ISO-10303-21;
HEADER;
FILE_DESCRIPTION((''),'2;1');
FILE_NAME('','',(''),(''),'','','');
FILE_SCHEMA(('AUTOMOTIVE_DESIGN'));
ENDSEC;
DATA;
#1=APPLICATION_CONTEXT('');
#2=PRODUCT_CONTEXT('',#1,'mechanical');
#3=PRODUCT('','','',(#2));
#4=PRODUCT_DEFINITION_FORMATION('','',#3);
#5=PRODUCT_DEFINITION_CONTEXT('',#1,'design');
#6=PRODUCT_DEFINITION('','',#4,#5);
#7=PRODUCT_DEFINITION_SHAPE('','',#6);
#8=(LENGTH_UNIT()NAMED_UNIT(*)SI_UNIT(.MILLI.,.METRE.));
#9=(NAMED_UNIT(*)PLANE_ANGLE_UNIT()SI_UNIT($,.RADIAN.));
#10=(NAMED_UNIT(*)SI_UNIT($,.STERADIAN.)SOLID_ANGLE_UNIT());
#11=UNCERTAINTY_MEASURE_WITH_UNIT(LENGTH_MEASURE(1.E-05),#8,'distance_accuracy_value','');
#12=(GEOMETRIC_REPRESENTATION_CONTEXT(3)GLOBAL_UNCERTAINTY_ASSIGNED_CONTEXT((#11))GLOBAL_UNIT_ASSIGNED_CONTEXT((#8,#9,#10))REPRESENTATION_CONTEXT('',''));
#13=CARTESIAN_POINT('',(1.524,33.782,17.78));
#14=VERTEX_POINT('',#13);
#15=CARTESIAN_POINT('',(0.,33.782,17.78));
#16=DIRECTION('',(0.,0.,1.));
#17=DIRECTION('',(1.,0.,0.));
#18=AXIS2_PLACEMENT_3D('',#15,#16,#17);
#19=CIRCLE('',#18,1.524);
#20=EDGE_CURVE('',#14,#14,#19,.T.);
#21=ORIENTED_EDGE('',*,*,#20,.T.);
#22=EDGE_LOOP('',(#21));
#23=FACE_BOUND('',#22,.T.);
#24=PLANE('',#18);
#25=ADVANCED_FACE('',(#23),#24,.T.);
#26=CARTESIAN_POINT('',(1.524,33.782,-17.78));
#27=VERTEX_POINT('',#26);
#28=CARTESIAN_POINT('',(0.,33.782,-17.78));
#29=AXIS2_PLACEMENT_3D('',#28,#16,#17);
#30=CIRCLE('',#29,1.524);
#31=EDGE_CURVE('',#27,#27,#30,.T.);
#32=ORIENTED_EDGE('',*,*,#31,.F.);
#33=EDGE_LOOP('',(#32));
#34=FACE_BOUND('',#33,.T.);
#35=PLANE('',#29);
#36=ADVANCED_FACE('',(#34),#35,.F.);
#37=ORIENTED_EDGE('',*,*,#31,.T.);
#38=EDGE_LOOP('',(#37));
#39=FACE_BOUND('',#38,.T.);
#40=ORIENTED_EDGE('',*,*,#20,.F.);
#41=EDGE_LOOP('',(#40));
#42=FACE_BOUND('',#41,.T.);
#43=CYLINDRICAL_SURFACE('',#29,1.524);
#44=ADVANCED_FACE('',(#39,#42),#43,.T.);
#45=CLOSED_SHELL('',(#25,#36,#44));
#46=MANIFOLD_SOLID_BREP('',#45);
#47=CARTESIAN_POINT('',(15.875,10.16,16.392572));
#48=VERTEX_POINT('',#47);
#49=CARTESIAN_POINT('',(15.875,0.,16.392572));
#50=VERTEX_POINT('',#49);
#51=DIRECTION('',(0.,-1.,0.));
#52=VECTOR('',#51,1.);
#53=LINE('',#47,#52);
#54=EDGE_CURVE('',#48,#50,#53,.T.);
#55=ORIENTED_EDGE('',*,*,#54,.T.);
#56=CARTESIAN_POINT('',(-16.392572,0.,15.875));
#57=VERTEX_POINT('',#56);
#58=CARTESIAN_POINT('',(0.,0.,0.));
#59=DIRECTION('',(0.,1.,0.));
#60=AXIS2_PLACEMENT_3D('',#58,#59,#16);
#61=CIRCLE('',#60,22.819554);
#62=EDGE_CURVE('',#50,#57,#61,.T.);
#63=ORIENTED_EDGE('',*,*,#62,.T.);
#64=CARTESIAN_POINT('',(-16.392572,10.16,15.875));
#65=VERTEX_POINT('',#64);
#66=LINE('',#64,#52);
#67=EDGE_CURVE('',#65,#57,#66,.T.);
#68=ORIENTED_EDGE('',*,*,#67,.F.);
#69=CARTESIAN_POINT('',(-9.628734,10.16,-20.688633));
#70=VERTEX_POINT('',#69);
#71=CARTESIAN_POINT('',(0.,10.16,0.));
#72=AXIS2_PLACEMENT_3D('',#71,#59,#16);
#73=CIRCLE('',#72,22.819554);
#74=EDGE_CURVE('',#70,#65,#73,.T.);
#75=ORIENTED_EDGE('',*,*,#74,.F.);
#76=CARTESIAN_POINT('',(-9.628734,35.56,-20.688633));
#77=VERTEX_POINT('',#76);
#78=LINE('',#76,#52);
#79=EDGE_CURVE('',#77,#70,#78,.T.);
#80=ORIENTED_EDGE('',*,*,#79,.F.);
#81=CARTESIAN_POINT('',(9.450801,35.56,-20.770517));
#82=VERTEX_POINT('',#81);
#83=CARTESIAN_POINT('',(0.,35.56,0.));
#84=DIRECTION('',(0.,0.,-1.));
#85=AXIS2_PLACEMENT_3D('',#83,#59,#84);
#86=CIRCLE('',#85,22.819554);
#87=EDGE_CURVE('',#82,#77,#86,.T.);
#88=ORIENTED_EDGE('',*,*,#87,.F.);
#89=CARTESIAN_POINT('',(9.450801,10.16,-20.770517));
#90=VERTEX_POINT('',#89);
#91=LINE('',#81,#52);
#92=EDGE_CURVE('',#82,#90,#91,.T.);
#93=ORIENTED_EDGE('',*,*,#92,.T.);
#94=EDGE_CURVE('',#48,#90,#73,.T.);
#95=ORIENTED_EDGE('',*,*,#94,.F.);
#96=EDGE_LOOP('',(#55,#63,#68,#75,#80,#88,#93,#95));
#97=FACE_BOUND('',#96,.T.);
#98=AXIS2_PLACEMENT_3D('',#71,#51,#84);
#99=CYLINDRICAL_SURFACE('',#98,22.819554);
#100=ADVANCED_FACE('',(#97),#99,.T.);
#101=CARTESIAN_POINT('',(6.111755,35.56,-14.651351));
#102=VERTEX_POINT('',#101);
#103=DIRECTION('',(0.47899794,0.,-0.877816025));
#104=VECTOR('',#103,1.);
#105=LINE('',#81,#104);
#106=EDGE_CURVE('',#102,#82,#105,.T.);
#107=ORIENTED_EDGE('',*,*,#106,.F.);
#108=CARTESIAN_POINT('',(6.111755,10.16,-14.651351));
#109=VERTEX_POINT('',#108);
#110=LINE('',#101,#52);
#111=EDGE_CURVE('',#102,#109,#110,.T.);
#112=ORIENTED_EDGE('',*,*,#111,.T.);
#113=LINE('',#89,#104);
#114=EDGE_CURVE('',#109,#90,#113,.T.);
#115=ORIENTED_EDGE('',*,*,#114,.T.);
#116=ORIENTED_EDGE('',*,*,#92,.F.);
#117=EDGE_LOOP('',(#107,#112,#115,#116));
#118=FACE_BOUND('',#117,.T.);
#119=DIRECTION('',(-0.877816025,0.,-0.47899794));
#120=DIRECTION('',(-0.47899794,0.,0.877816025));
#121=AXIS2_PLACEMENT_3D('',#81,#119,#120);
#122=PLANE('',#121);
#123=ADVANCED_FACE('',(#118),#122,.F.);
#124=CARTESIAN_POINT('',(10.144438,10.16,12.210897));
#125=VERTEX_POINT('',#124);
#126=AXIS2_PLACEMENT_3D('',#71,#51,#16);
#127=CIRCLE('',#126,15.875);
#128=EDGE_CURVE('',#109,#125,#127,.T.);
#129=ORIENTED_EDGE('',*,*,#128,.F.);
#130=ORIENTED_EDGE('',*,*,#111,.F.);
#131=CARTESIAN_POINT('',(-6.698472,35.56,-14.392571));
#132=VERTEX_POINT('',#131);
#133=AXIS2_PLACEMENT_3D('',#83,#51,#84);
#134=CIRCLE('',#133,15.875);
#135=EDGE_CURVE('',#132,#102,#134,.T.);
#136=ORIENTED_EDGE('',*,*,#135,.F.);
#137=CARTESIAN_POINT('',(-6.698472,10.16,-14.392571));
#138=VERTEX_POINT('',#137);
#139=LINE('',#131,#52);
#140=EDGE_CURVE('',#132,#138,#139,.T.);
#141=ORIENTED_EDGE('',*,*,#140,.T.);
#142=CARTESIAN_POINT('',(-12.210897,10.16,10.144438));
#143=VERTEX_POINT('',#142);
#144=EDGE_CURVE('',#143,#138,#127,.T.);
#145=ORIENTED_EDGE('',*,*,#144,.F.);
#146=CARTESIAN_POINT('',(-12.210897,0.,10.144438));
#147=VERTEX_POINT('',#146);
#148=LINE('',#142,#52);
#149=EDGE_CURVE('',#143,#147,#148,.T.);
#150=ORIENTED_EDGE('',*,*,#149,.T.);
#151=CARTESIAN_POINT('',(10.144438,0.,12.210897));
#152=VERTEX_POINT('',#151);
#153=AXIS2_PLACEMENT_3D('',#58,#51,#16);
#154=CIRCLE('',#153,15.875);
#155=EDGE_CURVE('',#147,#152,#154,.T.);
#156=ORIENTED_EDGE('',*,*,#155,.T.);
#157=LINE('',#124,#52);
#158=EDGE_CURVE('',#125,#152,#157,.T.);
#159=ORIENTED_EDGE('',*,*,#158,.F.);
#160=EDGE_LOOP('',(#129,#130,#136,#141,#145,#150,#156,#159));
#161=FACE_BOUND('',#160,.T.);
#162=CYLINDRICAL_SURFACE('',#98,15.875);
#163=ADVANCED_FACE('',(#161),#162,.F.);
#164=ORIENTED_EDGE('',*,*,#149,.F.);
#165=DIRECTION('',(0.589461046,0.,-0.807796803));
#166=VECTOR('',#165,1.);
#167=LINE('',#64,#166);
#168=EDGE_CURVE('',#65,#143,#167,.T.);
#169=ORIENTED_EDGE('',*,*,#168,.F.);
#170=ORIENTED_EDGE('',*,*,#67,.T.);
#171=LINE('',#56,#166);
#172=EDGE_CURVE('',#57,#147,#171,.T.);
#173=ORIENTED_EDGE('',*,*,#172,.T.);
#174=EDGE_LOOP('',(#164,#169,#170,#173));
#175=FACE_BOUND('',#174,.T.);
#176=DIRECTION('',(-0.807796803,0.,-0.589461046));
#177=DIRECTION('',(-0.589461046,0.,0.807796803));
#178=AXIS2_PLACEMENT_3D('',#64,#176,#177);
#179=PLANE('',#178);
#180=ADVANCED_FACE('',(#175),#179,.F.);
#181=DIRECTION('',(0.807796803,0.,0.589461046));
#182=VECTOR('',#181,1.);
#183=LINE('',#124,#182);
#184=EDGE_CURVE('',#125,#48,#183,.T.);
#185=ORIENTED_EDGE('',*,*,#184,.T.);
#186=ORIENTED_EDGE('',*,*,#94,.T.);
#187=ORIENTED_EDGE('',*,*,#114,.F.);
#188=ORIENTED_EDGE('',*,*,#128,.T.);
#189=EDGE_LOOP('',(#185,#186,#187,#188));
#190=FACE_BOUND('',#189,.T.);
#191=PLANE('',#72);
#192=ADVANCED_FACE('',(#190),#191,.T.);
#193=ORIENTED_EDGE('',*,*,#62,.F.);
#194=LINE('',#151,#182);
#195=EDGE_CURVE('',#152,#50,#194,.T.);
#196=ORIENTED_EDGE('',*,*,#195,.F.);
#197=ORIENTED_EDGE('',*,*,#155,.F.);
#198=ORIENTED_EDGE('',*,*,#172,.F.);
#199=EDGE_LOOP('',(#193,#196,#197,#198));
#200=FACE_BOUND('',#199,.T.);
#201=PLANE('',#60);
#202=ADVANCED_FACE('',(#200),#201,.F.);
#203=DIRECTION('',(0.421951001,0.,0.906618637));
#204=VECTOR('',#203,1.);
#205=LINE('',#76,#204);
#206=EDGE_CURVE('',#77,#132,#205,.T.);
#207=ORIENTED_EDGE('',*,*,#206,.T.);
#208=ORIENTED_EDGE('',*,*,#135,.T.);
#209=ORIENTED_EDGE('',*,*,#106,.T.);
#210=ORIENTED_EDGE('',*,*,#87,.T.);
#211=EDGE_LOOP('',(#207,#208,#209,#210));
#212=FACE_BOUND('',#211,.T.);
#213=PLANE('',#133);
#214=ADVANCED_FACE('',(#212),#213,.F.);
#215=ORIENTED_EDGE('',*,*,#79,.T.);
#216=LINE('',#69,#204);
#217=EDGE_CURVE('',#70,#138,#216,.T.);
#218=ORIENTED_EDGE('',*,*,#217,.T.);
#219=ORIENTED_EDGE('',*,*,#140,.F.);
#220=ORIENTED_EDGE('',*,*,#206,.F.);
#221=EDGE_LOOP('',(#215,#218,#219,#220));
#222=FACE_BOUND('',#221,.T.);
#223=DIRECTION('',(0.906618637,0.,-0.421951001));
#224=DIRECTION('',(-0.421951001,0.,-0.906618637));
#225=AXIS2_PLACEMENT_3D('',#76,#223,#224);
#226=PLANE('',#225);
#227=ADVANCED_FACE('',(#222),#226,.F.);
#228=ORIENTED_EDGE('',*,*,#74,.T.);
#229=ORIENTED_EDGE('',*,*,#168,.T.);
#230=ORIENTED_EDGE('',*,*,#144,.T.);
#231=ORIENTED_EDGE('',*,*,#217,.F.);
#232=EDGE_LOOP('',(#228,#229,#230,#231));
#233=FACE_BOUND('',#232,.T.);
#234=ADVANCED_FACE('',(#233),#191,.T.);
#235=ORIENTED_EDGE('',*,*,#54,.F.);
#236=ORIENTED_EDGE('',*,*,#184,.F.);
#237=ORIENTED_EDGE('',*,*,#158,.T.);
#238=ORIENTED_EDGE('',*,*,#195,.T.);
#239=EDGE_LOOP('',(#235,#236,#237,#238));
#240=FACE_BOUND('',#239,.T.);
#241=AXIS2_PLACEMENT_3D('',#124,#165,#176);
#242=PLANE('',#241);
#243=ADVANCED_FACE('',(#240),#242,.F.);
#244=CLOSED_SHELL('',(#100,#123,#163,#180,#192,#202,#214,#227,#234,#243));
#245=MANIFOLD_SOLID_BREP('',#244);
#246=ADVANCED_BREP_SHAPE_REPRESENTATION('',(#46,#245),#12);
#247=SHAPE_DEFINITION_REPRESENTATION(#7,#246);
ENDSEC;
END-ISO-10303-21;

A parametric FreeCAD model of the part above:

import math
import FreeCAD as App
import Part
import Sketcher
from FreeCAD import Vector
Q = App.Units.Quantity

doc = App.newDocument("Part")
body = doc.addObject("PartDesign::Body", "Body")

sketch1 = body.newObject("Sketcher::SketchObject", "Sketch")
sketch1.AttachmentSupport = (doc.getObject("XZ_Plane"), [""])
sketch1.MapMode = "FlatFace"
sketch1.addGeometry([
    Part.LineSegment(Vector(-16, 16, 0), Vector(-12, 10, 0)),
    Part.ArcOfCircle(Part.Circle(Vector(0, 0, 0), Vector(0, 0, 1), 16), math.radians(140), math.radians(410)),
    Part.LineSegment(Vector(10, 12, 0), Vector(16, 16, 0)),
    Part.ArcOfCircle(Part.Circle(Vector(0, 0, 0), Vector(0, 0, 1), 23), math.radians(136), math.radians(406)),
], False)
sketch1.addConstraint([
    Sketcher.Constraint("Coincident", 0, 2, 1, 1),
    Sketcher.Constraint("Coincident", 1, 2, 2, 1),
    Sketcher.Constraint("Coincident", 2, 2, 3, 2),
    Sketcher.Constraint("Coincident", 3, 1, 0, 1),
    Sketcher.Constraint("Coincident", 1, 3, -1, 1),
    Sketcher.Constraint("Coincident", 3, 3, -1, 1),
    Sketcher.Constraint("Perpendicular", 0, 2),
    Sketcher.Constraint("Equal", 0, 2),
    Sketcher.Constraint("Radius", 1, Q("0.625 in")),
    Sketcher.Constraint("DistanceX", -1, 1, 2, 2, Q("0.625 in")),
    Sketcher.Constraint("Radius", 3, 22.819554),
    Sketcher.Constraint("DistanceY", 0, 2, 1, 2, 2.06646),
])
pad1 = body.newObject("PartDesign::Pad", "Pad")
pad1.Profile = sketch1
pad1.Length = Q("0.4 in")
pad1.Reversed = True

sketch2 = body.newObject("Sketcher::SketchObject", "Sketch001")
sketch2.AttachmentSupport = (doc.getObject("XZ_Plane"), [""])
sketch2.MapMode = "FlatFace"
sketch2.AttachmentOffset = App.Placement(Vector(0, 0, -0.4 * 25.4), App.Rotation())
sketch2.addGeometry([
    Part.LineSegment(Vector(-10, -21, 0), Vector(-7, -14, 0)),
    Part.ArcOfCircle(Part.Circle(Vector(0, 0, 0), Vector(0, 0, 1), 16), math.radians(-115), math.radians(-67)),
    Part.LineSegment(Vector(6, -15, 0), Vector(9, -21, 0)),
    Part.ArcOfCircle(Part.Circle(Vector(0, 0, 0), Vector(0, 0, 1), 23), math.radians(-115), math.radians(-66)),
], False)
sketch2.addConstraint([
    Sketcher.Constraint("Coincident", 0, 2, 1, 1),
    Sketcher.Constraint("Coincident", 1, 2, 2, 1),
    Sketcher.Constraint("Coincident", 2, 2, 3, 2),
    Sketcher.Constraint("Coincident", 3, 1, 0, 1),
    Sketcher.Constraint("Coincident", 1, 3, -1, 1),
    Sketcher.Constraint("Coincident", 3, 3, -1, 1),
    Sketcher.Constraint("Radius", 1, Q("0.625 in")),
    Sketcher.Constraint("Radius", 3, 22.819554),
    Sketcher.Constraint("Distance", 2, 6.970899),
    Sketcher.Constraint("DistanceX", -1, 1, 2, 2, 9.450801),
    Sketcher.Constraint("DistanceY", 0, 2, -1, 1, 14.392571),
    Sketcher.Constraint("DistanceX", 3, 1, 0, 2, 2.930261),
])
pad2 = body.newObject("PartDesign::Pad", "Pad001")
pad2.Profile = sketch2
pad2.Length = Q("1 in")
pad2.Reversed = True
body2 = doc.addObject("PartDesign::Body", "Body001")

sketch3 = body2.newObject("Sketcher::SketchObject", "Sketch002")
sketch3.AttachmentSupport = (doc.getObject("XY_Plane001"), [""])
sketch3.MapMode = "FlatFace"
sketch3.addGeometry(Part.Circle(Vector(0, 33.8, 0), Vector(0, 0, 1), 1.5), False)
sketch3.addConstraint([
    Sketcher.Constraint("PointOnObject", 0, 3, -2),
    Sketcher.Constraint("Diameter", 0, Q("0.12 in")),
    Sketcher.Constraint("DistanceY", -1, 1, 0, 3, Q("1.33 in")),
])
pad3 = body2.newObject("PartDesign::Pad", "Pad002")
pad3.Profile = sketch3
pad3.Type = "TwoLengths"
pad3.Length = Q("0.7 in")
pad3.Length2 = Q("0.7 in")

doc.recompute()
